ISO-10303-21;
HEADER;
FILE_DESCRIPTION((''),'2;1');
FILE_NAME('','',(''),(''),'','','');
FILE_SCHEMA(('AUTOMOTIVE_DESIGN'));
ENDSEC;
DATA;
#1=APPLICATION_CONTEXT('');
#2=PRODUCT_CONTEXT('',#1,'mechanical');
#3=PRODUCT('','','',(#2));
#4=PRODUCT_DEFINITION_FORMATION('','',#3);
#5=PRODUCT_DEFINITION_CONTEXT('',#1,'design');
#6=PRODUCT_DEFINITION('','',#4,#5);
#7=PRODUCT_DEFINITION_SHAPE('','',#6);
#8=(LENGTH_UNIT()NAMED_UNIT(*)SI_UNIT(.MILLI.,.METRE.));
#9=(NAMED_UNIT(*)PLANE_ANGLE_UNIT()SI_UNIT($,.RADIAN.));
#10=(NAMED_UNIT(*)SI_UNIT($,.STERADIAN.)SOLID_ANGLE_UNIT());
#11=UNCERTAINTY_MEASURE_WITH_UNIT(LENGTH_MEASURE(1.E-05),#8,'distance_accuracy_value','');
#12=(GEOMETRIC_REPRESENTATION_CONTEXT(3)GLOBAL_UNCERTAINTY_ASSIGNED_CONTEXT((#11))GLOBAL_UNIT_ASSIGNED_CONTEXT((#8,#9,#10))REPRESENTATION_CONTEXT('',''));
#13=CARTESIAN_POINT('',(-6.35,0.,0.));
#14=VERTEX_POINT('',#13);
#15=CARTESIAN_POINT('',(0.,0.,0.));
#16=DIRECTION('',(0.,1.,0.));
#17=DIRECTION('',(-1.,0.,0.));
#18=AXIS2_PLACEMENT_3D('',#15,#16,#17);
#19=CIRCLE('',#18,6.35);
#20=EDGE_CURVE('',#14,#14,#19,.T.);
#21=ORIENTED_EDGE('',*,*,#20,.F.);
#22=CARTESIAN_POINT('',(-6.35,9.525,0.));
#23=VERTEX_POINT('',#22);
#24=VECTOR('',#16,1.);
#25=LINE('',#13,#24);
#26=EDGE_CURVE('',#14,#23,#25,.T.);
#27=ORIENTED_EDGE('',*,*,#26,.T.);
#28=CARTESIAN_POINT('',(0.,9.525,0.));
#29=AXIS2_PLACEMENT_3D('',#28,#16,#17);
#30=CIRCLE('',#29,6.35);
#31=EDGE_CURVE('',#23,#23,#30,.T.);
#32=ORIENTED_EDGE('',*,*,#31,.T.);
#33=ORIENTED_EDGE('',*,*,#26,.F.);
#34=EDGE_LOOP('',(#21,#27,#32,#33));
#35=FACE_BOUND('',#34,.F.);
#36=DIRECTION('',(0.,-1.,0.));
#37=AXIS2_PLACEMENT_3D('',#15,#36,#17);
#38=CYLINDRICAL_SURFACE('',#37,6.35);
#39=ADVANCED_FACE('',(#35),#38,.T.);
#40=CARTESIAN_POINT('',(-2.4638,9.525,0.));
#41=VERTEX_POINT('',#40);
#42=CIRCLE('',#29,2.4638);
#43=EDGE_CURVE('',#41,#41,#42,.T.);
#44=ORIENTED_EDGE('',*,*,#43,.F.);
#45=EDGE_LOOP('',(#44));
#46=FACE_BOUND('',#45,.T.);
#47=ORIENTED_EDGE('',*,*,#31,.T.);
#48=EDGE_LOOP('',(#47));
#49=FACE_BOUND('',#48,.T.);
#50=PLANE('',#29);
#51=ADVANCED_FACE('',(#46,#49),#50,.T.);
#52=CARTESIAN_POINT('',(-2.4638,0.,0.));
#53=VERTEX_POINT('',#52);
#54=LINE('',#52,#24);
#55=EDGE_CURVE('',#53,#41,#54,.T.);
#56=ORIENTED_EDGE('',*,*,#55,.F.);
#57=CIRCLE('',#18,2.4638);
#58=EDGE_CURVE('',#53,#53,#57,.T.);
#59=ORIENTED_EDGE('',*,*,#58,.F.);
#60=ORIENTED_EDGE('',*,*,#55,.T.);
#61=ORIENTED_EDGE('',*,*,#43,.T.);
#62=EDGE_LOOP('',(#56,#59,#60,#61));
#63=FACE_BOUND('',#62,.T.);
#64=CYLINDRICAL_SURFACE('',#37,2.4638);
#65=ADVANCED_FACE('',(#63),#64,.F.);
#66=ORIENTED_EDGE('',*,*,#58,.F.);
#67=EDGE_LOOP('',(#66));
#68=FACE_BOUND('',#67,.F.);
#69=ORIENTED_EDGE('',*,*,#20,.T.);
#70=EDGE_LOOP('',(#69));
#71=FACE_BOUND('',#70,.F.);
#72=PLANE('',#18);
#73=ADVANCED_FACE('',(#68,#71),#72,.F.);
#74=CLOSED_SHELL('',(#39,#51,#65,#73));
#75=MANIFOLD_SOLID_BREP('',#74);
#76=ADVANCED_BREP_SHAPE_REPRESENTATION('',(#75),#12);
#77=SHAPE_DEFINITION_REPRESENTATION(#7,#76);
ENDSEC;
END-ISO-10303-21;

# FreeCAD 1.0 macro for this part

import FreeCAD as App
import Part
import Sketcher

V = App.Vector
Q = App.Units.Quantity

doc = App.newDocument("Part")
body = doc.addObject("PartDesign::Body", "Body")

# Sketch on XZ plane
sketch1 = body.newObject("Sketcher::SketchObject", "Sketch")
sketch1.AttachmentSupport = (doc.getObject("XZ_Plane"), [""])
sketch1.MapMode = "FlatFace"
sketch1.addGeometry([
    Part.Circle(V(0, 0, 0), V(0, 0, 1), 6.3),
    Part.Circle(V(0, 0, 0), V(0, 0, 1), 2.5),
], False)
sketch1.addConstraint([
    Sketcher.Constraint("Coincident", 0, 3, -1, 1),
    Sketcher.Constraint("Coincident", 1, 3, -1, 1),
    Sketcher.Constraint("Diameter", 0, Q("0.5 in")),
    Sketcher.Constraint("Diameter", 1, Q("0.194 in")),
])
pad1 = body.newObject("PartDesign::Pad", "Pad")
pad1.Profile = sketch1
pad1.Length = Q("0.375 in")
pad1.Reversed = True

doc.recompute()
